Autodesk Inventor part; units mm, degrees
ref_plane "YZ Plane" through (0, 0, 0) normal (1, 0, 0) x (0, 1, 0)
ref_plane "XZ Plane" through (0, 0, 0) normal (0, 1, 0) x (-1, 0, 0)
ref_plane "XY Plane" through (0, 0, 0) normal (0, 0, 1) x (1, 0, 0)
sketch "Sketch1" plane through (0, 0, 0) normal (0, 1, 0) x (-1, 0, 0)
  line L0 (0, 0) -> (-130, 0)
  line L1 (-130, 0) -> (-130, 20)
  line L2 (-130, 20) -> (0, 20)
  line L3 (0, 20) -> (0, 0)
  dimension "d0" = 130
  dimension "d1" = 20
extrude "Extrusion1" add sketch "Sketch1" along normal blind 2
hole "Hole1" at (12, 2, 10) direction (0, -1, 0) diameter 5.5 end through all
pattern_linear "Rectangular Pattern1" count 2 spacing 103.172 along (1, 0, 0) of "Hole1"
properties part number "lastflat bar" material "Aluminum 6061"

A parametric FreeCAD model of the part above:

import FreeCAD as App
import Part
import Sketcher


def add_polygon(sketch, points):
    """Adds a closed chain of lines whose ends are joined by coincident constraints."""
    first, n = sketch.GeometryCount, len(points)
    for a, b in zip(points, points[1:] + points[:1]):
        sketch.addGeometry(Part.LineSegment(App.Vector(*a, 0), App.Vector(*b, 0)), False)
    for i in range(n):
        sketch.addConstraint(Sketcher.Constraint("Coincident", first + i, 2, first + (i + 1) % n, 1))

doc = App.newDocument("Part")
body = doc.addObject("PartDesign::Body", "Body")

# Sketch on XZ plane
sketch1 = body.newObject("Sketcher::SketchObject", "Sketch")
sketch1.AttachmentSupport = (doc.getObject("XZ_Plane"), [""])
sketch1.MapMode = "FlatFace"
add_polygon(sketch1, [(130, 0), (0, 0), (0, 20), (130, 20)])  # lines 0-3
sketch1.addConstraint([
    Sketcher.Constraint("Horizontal", 0),
    Sketcher.Constraint("Vertical", 1),
    Sketcher.Constraint("Horizontal", 2),
    Sketcher.Constraint("Vertical", 3),
    Sketcher.Constraint("Coincident", 0, 2, -1, 1),
    Sketcher.Constraint("DistanceX", 0, 2, 0, 1, 130.0),
    Sketcher.Constraint("DistanceY", 1, 1, 1, 2, 20.0),
])
pad1 = body.newObject("PartDesign::Pad", "Pad")
pad1.Profile = sketch1
pad1.Length = 2
pad1.Reversed = True

# Sketch on XZ plane
sketch2 = body.newObject("Sketcher::SketchObject", "Sketch001")
sketch2.AttachmentSupport = (doc.getObject("XZ_Plane"), [""])
sketch2.MapMode = "FlatFace"
sketch2.AttachmentOffset = App.Placement(App.Vector(0, 0, -2), App.Rotation())
sketch2.addGeometry(Part.Circle(App.Vector(12, 10, 0), App.Vector(0, 0, 1), 2.8), False)
sketch2.addConstraint([
    Sketcher.Constraint("Diameter", 0, 5.5),
    Sketcher.Constraint("DistanceX", -1, 1, 0, 3, 12.0),
    Sketcher.Constraint("DistanceY", -1, 1, 0, 3, 10.0),
])
doc.recompute()
hole = body.newObject("PartDesign::Hole", "Hole")
hole.Profile = sketch2
hole.ThreadType = "None"
hole.Diameter = 5.5
hole.DepthType = "ThroughAll"
hole.Reversed = True
doc.recompute()

linearpattern = body.newObject("PartDesign::LinearPattern", "LinearPattern")
linearpattern.Originals = [hole]
linearpattern.Direction = (doc.getObject("X_Axis"), [""])
linearpattern.Mode = "offset"
linearpattern.Offset = 103.172
linearpattern.Occurrences = 2
body.Tip = linearpattern

doc.recompute()
